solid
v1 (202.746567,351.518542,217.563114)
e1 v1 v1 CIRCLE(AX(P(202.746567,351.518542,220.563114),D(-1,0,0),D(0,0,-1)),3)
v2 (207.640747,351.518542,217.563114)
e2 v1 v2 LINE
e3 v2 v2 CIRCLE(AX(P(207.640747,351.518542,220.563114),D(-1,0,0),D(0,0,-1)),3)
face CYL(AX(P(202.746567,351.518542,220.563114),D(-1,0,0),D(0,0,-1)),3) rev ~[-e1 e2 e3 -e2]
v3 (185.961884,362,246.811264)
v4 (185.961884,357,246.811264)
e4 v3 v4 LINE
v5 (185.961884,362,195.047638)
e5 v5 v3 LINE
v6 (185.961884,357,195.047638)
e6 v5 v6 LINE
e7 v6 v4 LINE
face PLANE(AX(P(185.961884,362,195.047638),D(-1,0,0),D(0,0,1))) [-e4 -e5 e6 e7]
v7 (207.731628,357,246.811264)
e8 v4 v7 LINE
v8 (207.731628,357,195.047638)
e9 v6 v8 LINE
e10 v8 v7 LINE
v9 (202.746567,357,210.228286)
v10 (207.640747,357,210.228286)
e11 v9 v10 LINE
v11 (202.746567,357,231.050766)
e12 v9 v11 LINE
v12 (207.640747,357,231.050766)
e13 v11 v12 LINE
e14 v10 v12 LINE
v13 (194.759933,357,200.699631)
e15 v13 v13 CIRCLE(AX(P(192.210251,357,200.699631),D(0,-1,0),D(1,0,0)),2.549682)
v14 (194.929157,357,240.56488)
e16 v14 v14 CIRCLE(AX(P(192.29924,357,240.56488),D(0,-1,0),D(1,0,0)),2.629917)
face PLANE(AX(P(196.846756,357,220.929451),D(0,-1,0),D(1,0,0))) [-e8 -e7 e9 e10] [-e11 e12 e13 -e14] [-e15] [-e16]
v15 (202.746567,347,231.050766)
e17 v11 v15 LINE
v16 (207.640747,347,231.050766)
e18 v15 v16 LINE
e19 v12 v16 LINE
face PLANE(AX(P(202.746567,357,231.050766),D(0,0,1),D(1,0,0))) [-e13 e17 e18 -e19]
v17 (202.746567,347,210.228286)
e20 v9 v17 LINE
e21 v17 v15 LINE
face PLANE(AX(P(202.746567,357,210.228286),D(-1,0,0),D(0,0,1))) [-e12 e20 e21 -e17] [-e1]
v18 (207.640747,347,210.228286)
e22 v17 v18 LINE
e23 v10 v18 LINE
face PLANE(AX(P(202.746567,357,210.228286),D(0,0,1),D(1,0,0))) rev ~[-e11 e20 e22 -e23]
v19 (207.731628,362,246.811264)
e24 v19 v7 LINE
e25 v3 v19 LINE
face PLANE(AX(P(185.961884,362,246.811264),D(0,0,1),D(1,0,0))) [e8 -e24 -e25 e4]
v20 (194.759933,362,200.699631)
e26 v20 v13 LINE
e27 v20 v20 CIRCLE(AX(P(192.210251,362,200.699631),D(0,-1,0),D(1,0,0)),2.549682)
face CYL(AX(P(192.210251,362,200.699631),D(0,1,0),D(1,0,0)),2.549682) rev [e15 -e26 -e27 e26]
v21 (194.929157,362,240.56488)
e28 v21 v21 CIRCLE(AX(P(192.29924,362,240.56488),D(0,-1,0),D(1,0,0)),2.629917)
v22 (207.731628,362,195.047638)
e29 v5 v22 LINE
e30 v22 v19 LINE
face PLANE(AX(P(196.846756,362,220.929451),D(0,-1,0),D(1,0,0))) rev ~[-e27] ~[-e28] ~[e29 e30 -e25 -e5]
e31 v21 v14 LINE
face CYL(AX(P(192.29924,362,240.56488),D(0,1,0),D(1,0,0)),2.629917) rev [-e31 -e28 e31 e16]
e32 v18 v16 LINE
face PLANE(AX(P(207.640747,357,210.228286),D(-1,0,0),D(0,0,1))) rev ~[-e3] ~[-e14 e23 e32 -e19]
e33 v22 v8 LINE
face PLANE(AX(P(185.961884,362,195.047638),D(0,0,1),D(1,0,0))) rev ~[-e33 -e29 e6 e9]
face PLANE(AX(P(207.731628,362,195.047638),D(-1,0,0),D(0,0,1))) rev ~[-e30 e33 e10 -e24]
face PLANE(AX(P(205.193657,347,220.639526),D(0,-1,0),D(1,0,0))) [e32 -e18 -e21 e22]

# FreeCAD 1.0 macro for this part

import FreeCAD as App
import Part
import Sketcher
from FreeCAD import Vector
Q = App.Units.Quantity

doc = App.newDocument("Part")
body = doc.addObject("PartDesign::Body", "Body")

sketch1 = body.newObject("Sketcher::SketchObject", "Sketch")
sketch1.AttachmentSupport = (doc.getObject("XZ_Plane"), [""])
sketch1.MapMode = "FlatFace"
sketch1.AttachmentOffset = App.Placement(Vector(0, 0, -362), App.Rotation())
sketch1.addGeometry([
    Part.LineSegment(Vector(186, 246.8, 0), Vector(186, 195, 0)),
    Part.LineSegment(Vector(186, 195, 0), Vector(207.7, 195, 0)),
    Part.LineSegment(Vector(207.7, 195, 0), Vector(207.7, 246.8, 0)),
    Part.LineSegment(Vector(207.7, 246.8, 0), Vector(186, 246.8, 0)),
    Part.Circle(Vector(192.2, 200.7, 0), Vector(0, 0, 1), 2.5),
    Part.Circle(Vector(192.3, 240.6, 0), Vector(0, 0, 1), 2.6),
], False)
sketch1.addConstraint([
    Sketcher.Constraint("Coincident", 0, 2, 1, 1),
    Sketcher.Constraint("Coincident", 1, 2, 2, 1),
    Sketcher.Constraint("Coincident", 2, 2, 3, 1),
    Sketcher.Constraint("Coincident", 3, 2, 0, 1),
    Sketcher.Constraint("Vertical", 0),
    Sketcher.Constraint("Horizontal", 1),
    Sketcher.Constraint("Vertical", 2),
    Sketcher.Constraint("Horizontal", 3),
    Sketcher.Constraint("Diameter", 4, Q("5.099364 mm")),
    Sketcher.Constraint("Diameter", 5, Q("5.259834 mm")),
    Sketcher.Constraint("DistanceX", 1, 1, 1, 2, Q("21.769744 mm")),
    Sketcher.Constraint("DistanceY", 0, 2, 0, 1, Q("51.763626 mm")),
    Sketcher.Constraint("DistanceX", -1, 1, 4, 3, Q("192.210251 mm")),
    Sketcher.Constraint("DistanceY", -1, 1, 4, 3, Q("200.699631 mm")),
    Sketcher.Constraint("DistanceX", -1, 1, 5, 3, Q("192.29924 mm")),
    Sketcher.Constraint("DistanceY", -1, 1, 5, 3, Q("240.56488 mm")),
    Sketcher.Constraint("DistanceY", -1, 1, 0, 2, Q("195.047638 mm")),
    Sketcher.Constraint("DistanceX", -1, 1, 1, 2, Q("207.731628 mm")),
])
pad1 = body.newObject("PartDesign::Pad", "Pad")
pad1.Profile = sketch1
pad1.Length = 5

sketch2 = body.newObject("Sketcher::SketchObject", "Sketch001")
sketch2.AttachmentSupport = (doc.getObject("XZ_Plane"), [""])
sketch2.MapMode = "FlatFace"
sketch2.AttachmentOffset = App.Placement(Vector(0, 0, -357), App.Rotation())
sketch2.addGeometry([
    Part.LineSegment(Vector(202.7, 231.1, 0), Vector(202.7, 210.2, 0)),
    Part.LineSegment(Vector(202.7, 210.2, 0), Vector(207.6, 210.2, 0)),
    Part.LineSegment(Vector(207.6, 210.2, 0), Vector(207.6, 231.1, 0)),
    Part.LineSegment(Vector(207.6, 231.1, 0), Vector(202.7, 231.1, 0)),
], False)
sketch2.addConstraint([
    Sketcher.Constraint("Coincident", 0, 2, 1, 1),
    Sketcher.Constraint("Coincident", 1, 2, 2, 1),
    Sketcher.Constraint("Coincident", 2, 2, 3, 1),
    Sketcher.Constraint("Coincident", 3, 2, 0, 1),
    Sketcher.Constraint("Vertical", 0),
    Sketcher.Constraint("Horizontal", 1),
    Sketcher.Constraint("Vertical", 2),
    Sketcher.Constraint("Horizontal", 3),
    Sketcher.Constraint("DistanceX", 1, 1, 1, 2, Q("4.89418 mm")),
    Sketcher.Constraint("DistanceY", 0, 2, 0, 1, Q("20.822479 mm")),
    Sketcher.Constraint("DistanceX", -1, 1, 0, 2, Q("202.746567 mm")),
    Sketcher.Constraint("DistanceY", -1, 1, 0, 2, Q("210.228286 mm")),
])
pad2 = body.newObject("PartDesign::Pad", "Pad001")
pad2.Profile = sketch2
pad2.Length = 10

sketch3 = body.newObject("Sketcher::SketchObject", "Sketch002")
sketch3.AttachmentSupport = (doc.getObject("YZ_Plane"), [""])
sketch3.MapMode = "FlatFace"
sketch3.AttachmentOffset = App.Placement(Vector(0, 0, 202.746567), App.Rotation())
sketch3.addGeometry(Part.Circle(Vector(351.5, 220.6, 0), Vector(0, 0, 1), 3), False)
sketch3.addConstraint([
    Sketcher.Constraint("Diameter", 0, Q("6 mm")),
    Sketcher.Constraint("DistanceX", -1, 1, 0, 3, Q("351.518542 mm")),
    Sketcher.Constraint("DistanceY", -1, 1, 0, 3, Q("220.563114 mm")),
])
pocket1 = body.newObject("PartDesign::Pocket", "Pocket")
pocket1.Profile = sketch3
pocket1.Length = 5
pocket1.Reversed = True

doc.recompute()
